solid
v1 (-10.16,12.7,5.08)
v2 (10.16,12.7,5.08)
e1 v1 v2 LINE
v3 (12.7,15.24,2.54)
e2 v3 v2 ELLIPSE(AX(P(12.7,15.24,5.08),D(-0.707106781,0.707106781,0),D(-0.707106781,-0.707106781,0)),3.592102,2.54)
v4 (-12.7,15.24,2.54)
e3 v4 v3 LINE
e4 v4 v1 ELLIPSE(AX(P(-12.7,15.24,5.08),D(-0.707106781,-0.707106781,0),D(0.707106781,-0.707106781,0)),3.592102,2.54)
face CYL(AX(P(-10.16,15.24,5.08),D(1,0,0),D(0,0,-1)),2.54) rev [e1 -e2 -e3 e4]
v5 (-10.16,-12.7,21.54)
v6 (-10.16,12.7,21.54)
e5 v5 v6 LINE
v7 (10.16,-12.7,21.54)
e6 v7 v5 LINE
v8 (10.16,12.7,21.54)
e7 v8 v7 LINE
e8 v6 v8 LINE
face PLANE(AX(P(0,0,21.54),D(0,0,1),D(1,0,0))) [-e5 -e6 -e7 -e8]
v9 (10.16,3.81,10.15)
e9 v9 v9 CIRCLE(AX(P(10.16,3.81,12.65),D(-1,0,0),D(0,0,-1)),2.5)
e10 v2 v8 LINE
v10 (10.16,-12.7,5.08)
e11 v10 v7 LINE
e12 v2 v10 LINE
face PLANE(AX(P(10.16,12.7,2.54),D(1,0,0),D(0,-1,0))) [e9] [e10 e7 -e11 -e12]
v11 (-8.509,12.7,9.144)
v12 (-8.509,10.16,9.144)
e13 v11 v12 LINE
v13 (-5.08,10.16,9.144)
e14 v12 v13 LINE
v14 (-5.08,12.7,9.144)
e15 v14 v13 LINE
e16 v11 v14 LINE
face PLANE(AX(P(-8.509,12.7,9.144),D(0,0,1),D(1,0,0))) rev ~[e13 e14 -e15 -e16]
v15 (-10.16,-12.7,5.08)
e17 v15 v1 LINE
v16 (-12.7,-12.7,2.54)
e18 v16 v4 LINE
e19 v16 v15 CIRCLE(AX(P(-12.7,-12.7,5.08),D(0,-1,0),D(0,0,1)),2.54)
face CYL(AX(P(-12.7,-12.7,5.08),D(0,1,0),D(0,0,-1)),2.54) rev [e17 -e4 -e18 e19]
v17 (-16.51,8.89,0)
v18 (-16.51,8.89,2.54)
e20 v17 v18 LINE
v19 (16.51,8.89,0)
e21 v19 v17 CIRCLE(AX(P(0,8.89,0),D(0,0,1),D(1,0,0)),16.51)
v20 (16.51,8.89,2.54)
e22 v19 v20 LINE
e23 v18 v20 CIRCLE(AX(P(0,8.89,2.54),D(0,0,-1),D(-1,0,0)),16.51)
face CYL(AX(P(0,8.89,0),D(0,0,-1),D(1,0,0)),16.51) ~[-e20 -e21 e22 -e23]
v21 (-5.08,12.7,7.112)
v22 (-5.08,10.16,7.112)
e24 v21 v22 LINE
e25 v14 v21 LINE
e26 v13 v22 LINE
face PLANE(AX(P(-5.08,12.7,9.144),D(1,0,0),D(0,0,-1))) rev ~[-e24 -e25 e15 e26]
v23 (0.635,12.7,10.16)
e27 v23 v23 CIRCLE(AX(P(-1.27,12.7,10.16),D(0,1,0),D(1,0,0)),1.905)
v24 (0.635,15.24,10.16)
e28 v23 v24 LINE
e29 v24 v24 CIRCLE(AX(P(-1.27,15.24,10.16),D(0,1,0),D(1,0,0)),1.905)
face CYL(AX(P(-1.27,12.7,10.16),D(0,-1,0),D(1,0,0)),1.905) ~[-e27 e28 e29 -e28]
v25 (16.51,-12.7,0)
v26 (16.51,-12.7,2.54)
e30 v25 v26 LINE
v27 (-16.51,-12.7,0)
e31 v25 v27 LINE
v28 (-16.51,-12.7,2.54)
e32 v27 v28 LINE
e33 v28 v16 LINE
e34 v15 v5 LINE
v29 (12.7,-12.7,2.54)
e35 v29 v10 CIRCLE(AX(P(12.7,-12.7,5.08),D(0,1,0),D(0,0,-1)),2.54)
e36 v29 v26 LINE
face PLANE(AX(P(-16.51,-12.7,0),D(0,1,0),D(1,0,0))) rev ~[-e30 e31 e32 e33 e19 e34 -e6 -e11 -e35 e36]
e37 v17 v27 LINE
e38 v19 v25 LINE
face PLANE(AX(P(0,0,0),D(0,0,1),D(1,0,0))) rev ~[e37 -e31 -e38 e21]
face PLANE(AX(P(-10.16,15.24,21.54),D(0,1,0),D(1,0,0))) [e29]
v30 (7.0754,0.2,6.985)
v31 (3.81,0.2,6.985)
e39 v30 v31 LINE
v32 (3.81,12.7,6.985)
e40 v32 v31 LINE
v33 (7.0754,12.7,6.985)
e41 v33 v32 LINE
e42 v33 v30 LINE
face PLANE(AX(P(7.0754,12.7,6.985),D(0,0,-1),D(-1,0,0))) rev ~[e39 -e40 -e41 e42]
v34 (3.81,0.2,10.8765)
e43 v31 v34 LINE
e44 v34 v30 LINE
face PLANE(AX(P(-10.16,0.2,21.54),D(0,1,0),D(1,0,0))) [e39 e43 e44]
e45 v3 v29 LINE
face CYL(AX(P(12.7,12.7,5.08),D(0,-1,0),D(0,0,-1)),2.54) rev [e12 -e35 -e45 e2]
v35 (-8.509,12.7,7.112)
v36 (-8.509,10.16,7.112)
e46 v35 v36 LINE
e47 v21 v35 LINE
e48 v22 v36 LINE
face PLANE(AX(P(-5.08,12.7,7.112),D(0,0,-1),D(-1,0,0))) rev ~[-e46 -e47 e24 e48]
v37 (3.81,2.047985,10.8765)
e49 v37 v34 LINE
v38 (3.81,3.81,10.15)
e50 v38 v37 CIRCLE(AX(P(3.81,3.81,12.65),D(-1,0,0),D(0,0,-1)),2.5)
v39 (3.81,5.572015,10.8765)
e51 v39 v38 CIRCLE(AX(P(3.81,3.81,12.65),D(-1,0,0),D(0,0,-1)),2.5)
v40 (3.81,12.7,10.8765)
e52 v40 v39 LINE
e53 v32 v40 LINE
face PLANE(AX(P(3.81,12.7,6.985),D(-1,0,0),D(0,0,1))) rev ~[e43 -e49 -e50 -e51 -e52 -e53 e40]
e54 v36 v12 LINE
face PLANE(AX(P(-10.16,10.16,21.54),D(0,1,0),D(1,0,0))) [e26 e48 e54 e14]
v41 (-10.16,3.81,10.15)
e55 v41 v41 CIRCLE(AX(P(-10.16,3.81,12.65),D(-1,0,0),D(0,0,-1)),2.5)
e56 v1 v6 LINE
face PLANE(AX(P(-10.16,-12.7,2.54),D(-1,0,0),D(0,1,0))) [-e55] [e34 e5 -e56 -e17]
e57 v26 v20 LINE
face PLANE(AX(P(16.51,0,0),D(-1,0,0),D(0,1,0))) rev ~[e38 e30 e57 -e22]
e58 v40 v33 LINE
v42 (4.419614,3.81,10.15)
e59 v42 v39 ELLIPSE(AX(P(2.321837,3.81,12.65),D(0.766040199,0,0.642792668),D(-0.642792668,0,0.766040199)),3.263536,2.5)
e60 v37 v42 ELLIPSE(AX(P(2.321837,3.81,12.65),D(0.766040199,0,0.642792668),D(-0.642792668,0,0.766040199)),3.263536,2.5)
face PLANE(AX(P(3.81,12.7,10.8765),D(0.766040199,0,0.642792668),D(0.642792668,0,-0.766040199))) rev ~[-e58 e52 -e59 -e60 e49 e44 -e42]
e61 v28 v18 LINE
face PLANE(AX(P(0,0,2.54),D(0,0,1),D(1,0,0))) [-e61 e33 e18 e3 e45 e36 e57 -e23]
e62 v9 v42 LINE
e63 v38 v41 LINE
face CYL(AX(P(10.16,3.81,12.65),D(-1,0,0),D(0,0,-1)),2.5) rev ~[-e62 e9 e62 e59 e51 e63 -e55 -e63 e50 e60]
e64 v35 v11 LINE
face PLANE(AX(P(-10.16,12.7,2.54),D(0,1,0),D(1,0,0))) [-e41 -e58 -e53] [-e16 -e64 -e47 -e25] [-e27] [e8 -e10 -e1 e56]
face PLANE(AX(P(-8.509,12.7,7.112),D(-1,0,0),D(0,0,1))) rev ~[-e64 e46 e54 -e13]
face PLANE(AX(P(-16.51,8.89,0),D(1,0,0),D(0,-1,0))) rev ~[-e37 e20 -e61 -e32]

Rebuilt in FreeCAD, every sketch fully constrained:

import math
import FreeCAD as App
import Part
import Sketcher
Q = App.Units.Quantity


def edges_at(feature, points):
    """Names of the edges that pass closest to the given points."""
    edges = feature.Shape.Edges
    near = lambda p: min(range(len(edges)), key=lambda i: edges[i].distToShape(Part.Vertex(*p))[0])
    return sorted({f"Edge{near(p) + 1}" for p in points})


def add_polygon(sketch, points):
    """Adds a closed chain of lines whose ends are joined by coincident constraints."""
    first, n = sketch.GeometryCount, len(points)
    for a, b in zip(points, points[1:] + points[:1]):
        sketch.addGeometry(Part.LineSegment(App.Vector(*a, 0), App.Vector(*b, 0)), False)
    for i in range(n):
        sketch.addConstraint(Sketcher.Constraint("Coincident", first + i, 2, first + (i + 1) % n, 1))

doc = App.newDocument("Part")
body = doc.addObject("PartDesign::Body", "Body")

# Sketch on XY plane
sketch1 = body.newObject("Sketcher::SketchObject", "Sketch")
sketch1.AttachmentSupport = (doc.getObject("XY_Plane"), [""])
sketch1.MapMode = "FlatFace"
sketch1.addGeometry([
    Part.LineSegment(App.Vector(-17, 9, 0), App.Vector(-17, -13, 0)),
    Part.LineSegment(App.Vector(-17, -13, 0), App.Vector(17, -13, 0)),
    Part.LineSegment(App.Vector(17, -13, 0), App.Vector(17, 9, 0)),
    Part.ArcOfCircle(Part.Circle(App.Vector(0, 9, 0), App.Vector(0, 0, 1), 17), math.radians(0), math.radians(180)),
], False)
sketch1.addConstraint([
    Sketcher.Constraint("Coincident", 0, 2, 1, 1),
    Sketcher.Constraint("Coincident", 1, 2, 2, 1),
    Sketcher.Constraint("Tangent", 2, 2, 3, 1),
    Sketcher.Constraint("Tangent", 3, 2, 0, 1),
    Sketcher.Constraint("Vertical", 0),
    Sketcher.Constraint("Horizontal", 1),
    Sketcher.Constraint("Vertical", 2),
    Sketcher.Constraint("PointOnObject", 3, 3, -2),
    Sketcher.Constraint("Radius", 3, Q("0.65 in")),
    Sketcher.Constraint("DistanceY", 0, 2, -1, 1, Q("0.5 in")),
    Sketcher.Constraint("DistanceY", -1, 1, 3, 3, Q("0.35 in")),
])
pad1 = body.newObject("PartDesign::Pad", "Pad")
pad1.Profile = sketch1
pad1.Length = Q("0.1 in")

# Sketch on XY plane
sketch2 = body.newObject("Sketcher::SketchObject", "Sketch001")
sketch2.AttachmentSupport = (doc.getObject("XY_Plane"), [""])
sketch2.MapMode = "FlatFace"
sketch2.AttachmentOffset = App.Placement(App.Vector(0, 0, 0.1 * 25.4), App.Rotation())
add_polygon(sketch2, [(-10, -13), (10, -13), (10, 13), (-10, 13)])  # lines 0-3
sketch2.addConstraint([
    Sketcher.Constraint("Horizontal", 0),
    Sketcher.Constraint("Vertical", 1),
    Sketcher.Constraint("Horizontal", 2),
    Sketcher.Constraint("Vertical", 3),
    Sketcher.Constraint("Symmetric", 0, 2, 2, 2, -1, 1),
    Sketcher.Constraint("DistanceY", 1, 1, 1, 2, Q("1 in")),
    Sketcher.Constraint("DistanceX", 0, 1, 0, 2, Q("0.8 in")),
])
pad2 = body.newObject("PartDesign::Pad", "Pad001")
pad2.Profile = sketch2
pad2.Length = 19

# Sketch on YZ plane
sketch3 = body.newObject("Sketcher::SketchObject", "Sketch002")
sketch3.AttachmentSupport = (doc.getObject("YZ_Plane"), [""])
sketch3.MapMode = "FlatFace"
sketch3.AttachmentOffset = App.Placement(App.Vector(0, 0, 0.4 * 25.4), App.Rotation())
sketch3.addGeometry(Part.Circle(App.Vector(3.8, 12.7, 0), App.Vector(0, 0, 1), 2.5), False)
sketch3.addConstraint([
    Sketcher.Constraint("Diameter", 0, Q("5 mm")),
    Sketcher.Constraint("DistanceX", -1, 1, 0, 3, Q("0.15 in")),
    Sketcher.Constraint("DistanceY", -1, 1, 0, 3, Q("12.65 mm")),
])
doc.recompute()
hole = body.newObject("PartDesign::Hole", "Hole")
hole.Profile = sketch3
hole.ThreadType = "None"
hole.Diameter = 5
hole.DepthType = "ThroughAll"
doc.recompute()

fillet = body.newObject("PartDesign::Fillet", "Fillet")
fillet.Base = (hole, edges_at(hole, [(10.16, 0, 2.54), (0, 12.7, 2.54), (-10.16, 0, 2.54)]))
fillet.Radius = Q("0.1 in")

# Sketch on XZ plane
sketch4 = body.newObject("Sketcher::SketchObject", "Sketch003")
sketch4.AttachmentSupport = (doc.getObject("XZ_Plane"), [""])
sketch4.MapMode = "FlatFace"
sketch4.AttachmentOffset = App.Placement(App.Vector(0, 0, -0.5 * 25.4), App.Rotation())
add_polygon(sketch4, [(7.1, 7), (3.8, 7), (3.8, 10.9)])  # lines 0-2
sketch4.addConstraint([
    Sketcher.Constraint("Horizontal", 0),
    Sketcher.Constraint("Vertical", 1),
    Sketcher.Constraint("Distance", 2, Q("0.2 in")),
    Sketcher.Constraint("Angle", 2, Q("-49.9996 deg")),
    Sketcher.Constraint("DistanceX", -1, 1, 0, 2, Q("0.15 in")),
    Sketcher.Constraint("DistanceY", -1, 1, 0, 2, Q("0.275 in")),
])
pocket1 = body.newObject("PartDesign::Pocket", "Pocket")
pocket1.Profile = sketch4
pocket1.Length = 12.5
pocket1.Reversed = True

# Sketch on XZ plane
sketch5 = body.newObject("Sketcher::SketchObject", "Sketch004")
sketch5.AttachmentSupport = (doc.getObject("XZ_Plane"), [""])
sketch5.MapMode = "FlatFace"
sketch5.AttachmentOffset = App.Placement(App.Vector(0, 0, -0.5 * 25.4), App.Rotation())
sketch5.addGeometry(Part.Circle(App.Vector(-1.3, 10.2, 0), App.Vector(0, 0, 1), 1.9), False)
sketch5.addConstraint([
    Sketcher.Constraint("Diameter", 0, Q("0.15 in")),
    Sketcher.Constraint("DistanceY", -1, 1, 0, 3, Q("0.4 in")),
    Sketcher.Constraint("DistanceX", 0, 3, -1, 1, Q("0.05 in")),
])
pad3 = body.newObject("PartDesign::Pad", "Pad002")
pad3.Profile = sketch5
pad3.Length = Q("0.1 in")
pad3.Reversed = True

# Sketch on XZ plane
sketch6 = body.newObject("Sketcher::SketchObject", "Sketch005")
sketch6.AttachmentSupport = (doc.getObject("XZ_Plane"), [""])
sketch6.MapMode = "FlatFace"
sketch6.AttachmentOffset = App.Placement(App.Vector(0, 0, -0.5 * 25.4), App.Rotation())
add_polygon(sketch6, [(-5.1, 9.1), (-5.1, 7.1), (-8.5, 7.1), (-8.5, 9.1)])  # lines 0-3
sketch6.addConstraint([
    Sketcher.Constraint("Vertical", 0),
    Sketcher.Constraint("Horizontal", 1),
    Sketcher.Constraint("Vertical", 2),
    Sketcher.Constraint("Horizontal", 3),
    Sketcher.Constraint("DistanceY", 0, 2, 0, 1, Q("0.08 in")),
    Sketcher.Constraint("DistanceX", 1, 2, 1, 1, Q("0.135 in")),
    Sketcher.Constraint("DistanceX", 0, 2, -1, 1, Q("0.2 in")),
    Sketcher.Constraint("DistanceY", -1, 1, 0, 2, Q("0.28 in")),
])
pocket2 = body.newObject("PartDesign::Pocket", "Pocket001")
pocket2.Profile = sketch6
pocket2.Length = Q("0.1 in")
pocket2.Reversed = True

doc.recompute()
